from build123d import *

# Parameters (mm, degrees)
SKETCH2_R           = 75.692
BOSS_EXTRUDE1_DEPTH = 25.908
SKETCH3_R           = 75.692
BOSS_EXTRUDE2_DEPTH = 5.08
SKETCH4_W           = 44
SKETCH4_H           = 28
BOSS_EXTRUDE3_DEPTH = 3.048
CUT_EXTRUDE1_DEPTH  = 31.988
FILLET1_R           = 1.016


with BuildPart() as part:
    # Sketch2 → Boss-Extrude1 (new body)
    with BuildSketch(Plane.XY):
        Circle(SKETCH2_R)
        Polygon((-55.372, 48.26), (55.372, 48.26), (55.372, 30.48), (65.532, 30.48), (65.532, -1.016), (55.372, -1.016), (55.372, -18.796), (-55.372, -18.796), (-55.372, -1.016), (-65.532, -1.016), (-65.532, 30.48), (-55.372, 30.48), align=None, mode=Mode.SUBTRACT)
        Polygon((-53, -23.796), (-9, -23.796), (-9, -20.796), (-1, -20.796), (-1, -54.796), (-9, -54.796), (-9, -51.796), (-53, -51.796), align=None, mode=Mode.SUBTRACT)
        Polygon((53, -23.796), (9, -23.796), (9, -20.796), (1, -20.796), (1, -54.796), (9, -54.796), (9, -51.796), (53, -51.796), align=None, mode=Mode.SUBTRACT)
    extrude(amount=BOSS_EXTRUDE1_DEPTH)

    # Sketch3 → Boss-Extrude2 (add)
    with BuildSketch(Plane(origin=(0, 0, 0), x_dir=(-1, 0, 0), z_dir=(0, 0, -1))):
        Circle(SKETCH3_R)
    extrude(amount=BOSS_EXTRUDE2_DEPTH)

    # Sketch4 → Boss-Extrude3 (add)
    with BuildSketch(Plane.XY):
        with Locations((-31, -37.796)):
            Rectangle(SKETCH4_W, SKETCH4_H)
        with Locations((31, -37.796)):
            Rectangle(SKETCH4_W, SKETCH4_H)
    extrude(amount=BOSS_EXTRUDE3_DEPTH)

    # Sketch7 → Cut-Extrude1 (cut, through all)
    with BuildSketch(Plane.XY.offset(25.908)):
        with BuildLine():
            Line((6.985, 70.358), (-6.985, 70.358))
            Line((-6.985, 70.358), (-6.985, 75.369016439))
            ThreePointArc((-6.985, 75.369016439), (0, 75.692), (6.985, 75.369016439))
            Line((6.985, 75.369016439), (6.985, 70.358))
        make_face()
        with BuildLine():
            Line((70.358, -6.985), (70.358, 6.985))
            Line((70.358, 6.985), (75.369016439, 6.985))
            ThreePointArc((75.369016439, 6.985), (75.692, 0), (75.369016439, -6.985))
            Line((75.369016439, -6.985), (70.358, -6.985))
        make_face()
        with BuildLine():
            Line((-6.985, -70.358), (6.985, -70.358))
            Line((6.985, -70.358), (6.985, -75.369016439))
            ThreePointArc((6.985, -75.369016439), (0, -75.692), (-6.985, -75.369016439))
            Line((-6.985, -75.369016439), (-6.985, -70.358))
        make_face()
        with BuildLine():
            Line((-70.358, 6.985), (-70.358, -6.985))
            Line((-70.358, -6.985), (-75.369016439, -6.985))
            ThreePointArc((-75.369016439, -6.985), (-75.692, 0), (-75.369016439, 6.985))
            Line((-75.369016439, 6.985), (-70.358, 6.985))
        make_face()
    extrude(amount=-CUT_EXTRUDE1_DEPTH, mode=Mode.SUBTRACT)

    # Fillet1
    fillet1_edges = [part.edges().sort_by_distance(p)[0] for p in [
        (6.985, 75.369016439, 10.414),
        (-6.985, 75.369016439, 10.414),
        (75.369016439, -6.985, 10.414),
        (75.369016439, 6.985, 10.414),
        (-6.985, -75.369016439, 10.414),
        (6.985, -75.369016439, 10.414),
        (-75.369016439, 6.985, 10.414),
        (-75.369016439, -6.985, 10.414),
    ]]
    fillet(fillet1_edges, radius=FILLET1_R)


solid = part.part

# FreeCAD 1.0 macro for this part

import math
import FreeCAD as App
import Part
import Sketcher
Q = App.Units.Quantity


def edges_at(feature, points):
    """Names of the edges that pass closest to the given points."""
    edges = feature.Shape.Edges
    near = lambda p: min(range(len(edges)), key=lambda i: edges[i].distToShape(Part.Vertex(*p))[0])
    return sorted({f"Edge{near(p) + 1}" for p in points})

doc = App.newDocument("Part")
body = doc.addObject("PartDesign::Body", "Body")

sketch1 = doc.addObject("Sketcher::SketchObject", "Sketch")
body.addObject(sketch1)
sketch1.AttachmentSupport = (doc.XY_Plane, [""])
sketch1.MapMode = "FlatFace"
sketch1.addGeometry(Part.Circle(App.Vector(0, 0, 0), App.Vector(0, 0, 1), 75.7), False)
sketch1.addGeometry(Part.LineSegment(App.Vector(-53, -51.8, 0), App.Vector(-53, -23.8, 0)), False)
sketch1.addGeometry(Part.LineSegment(App.Vector(-53, -23.8, 0), App.Vector(-9, -23.8, 0)), False)
sketch1.addGeometry(Part.LineSegment(App.Vector(-9, -23.8, 0), App.Vector(-9, -20.8, 0)), False)
sketch1.addGeometry(Part.LineSegment(App.Vector(-9, -20.8, 0), App.Vector(-1, -20.8, 0)), False)
sketch1.addGeometry(Part.LineSegment(App.Vector(-1, -20.8, 0), App.Vector(-1, -54.8, 0)), False)
sketch1.addGeometry(Part.LineSegment(App.Vector(-1, -54.8, 0), App.Vector(-9, -54.8, 0)), False)
sketch1.addGeometry(Part.LineSegment(App.Vector(-9, -54.8, 0), App.Vector(-9, -51.8, 0)), False)
sketch1.addGeometry(Part.LineSegment(App.Vector(-9, -51.8, 0), App.Vector(-53, -51.8, 0)), False)
sketch1.addGeometry(Part.LineSegment(App.Vector(9, -23.8, 0), App.Vector(53, -23.8, 0)), False)
sketch1.addGeometry(Part.LineSegment(App.Vector(53, -23.8, 0), App.Vector(53, -51.8, 0)), False)
sketch1.addGeometry(Part.LineSegment(App.Vector(53, -51.8, 0), App.Vector(9, -51.8, 0)), False)
sketch1.addGeometry(Part.LineSegment(App.Vector(9, -51.8, 0), App.Vector(9, -54.8, 0)), False)
sketch1.addGeometry(Part.LineSegment(App.Vector(9, -54.8, 0), App.Vector(1, -54.8, 0)), False)
sketch1.addGeometry(Part.LineSegment(App.Vector(1, -54.8, 0), App.Vector(1, -20.8, 0)), False)
sketch1.addGeometry(Part.LineSegment(App.Vector(1, -20.8, 0), App.Vector(9, -20.8, 0)), False)
sketch1.addGeometry(Part.LineSegment(App.Vector(9, -20.8, 0), App.Vector(9, -23.8, 0)), False)
sketch1.addGeometry(Part.LineSegment(App.Vector(-55.4, 30.5, 0), App.Vector(-55.4, 48.3, 0)), False)
sketch1.addGeometry(Part.LineSegment(App.Vector(-55.4, 48.3, 0), App.Vector(55.4, 48.3, 0)), False)
sketch1.addGeometry(Part.LineSegment(App.Vector(55.4, 48.3, 0), App.Vector(55.4, 30.5, 0)), False)
sketch1.addGeometry(Part.LineSegment(App.Vector(55.4, 30.5, 0), App.Vector(65.5, 30.5, 0)), False)
sketch1.addGeometry(Part.LineSegment(App.Vector(65.5, 30.5, 0), App.Vector(65.5, -1, 0)), False)
sketch1.addGeometry(Part.LineSegment(App.Vector(65.5, -1, 0), App.Vector(55.4, -1, 0)), False)
sketch1.addGeometry(Part.LineSegment(App.Vector(55.4, -1, 0), App.Vector(55.4, -18.8, 0)), False)
sketch1.addGeometry(Part.LineSegment(App.Vector(55.4, -18.8, 0), App.Vector(-55.4, -18.8, 0)), False)
sketch1.addGeometry(Part.LineSegment(App.Vector(-55.4, -18.8, 0), App.Vector(-55.4, -1, 0)), False)
sketch1.addGeometry(Part.LineSegment(App.Vector(-55.4, -1, 0), App.Vector(-65.5, -1, 0)), False)
sketch1.addGeometry(Part.LineSegment(App.Vector(-65.5, -1, 0), App.Vector(-65.5, 30.5, 0)), False)
sketch1.addGeometry(Part.LineSegment(App.Vector(-65.5, 30.5, 0), App.Vector(-55.4, 30.5, 0)), False)
sketch1.addConstraint(Sketcher.Constraint("Coincident", 1, 2, 2, 1))
sketch1.addConstraint(Sketcher.Constraint("Coincident", 2, 2, 3, 1))
sketch1.addConstraint(Sketcher.Constraint("Coincident", 3, 2, 4, 1))
sketch1.addConstraint(Sketcher.Constraint("Coincident", 4, 2, 5, 1))
sketch1.addConstraint(Sketcher.Constraint("Coincident", 5, 2, 6, 1))
sketch1.addConstraint(Sketcher.Constraint("Coincident", 6, 2, 7, 1))
sketch1.addConstraint(Sketcher.Constraint("Coincident", 7, 2, 8, 1))
sketch1.addConstraint(Sketcher.Constraint("Coincident", 8, 2, 1, 1))
sketch1.addConstraint(Sketcher.Constraint("Coincident", 9, 2, 10, 1))
sketch1.addConstraint(Sketcher.Constraint("Coincident", 10, 2, 11, 1))
sketch1.addConstraint(Sketcher.Constraint("Coincident", 11, 2, 12, 1))
sketch1.addConstraint(Sketcher.Constraint("Coincident", 12, 2, 13, 1))
sketch1.addConstraint(Sketcher.Constraint("Coincident", 13, 2, 14, 1))
sketch1.addConstraint(Sketcher.Constraint("Coincident", 14, 2, 15, 1))
sketch1.addConstraint(Sketcher.Constraint("Coincident", 15, 2, 16, 1))
sketch1.addConstraint(Sketcher.Constraint("Coincident", 16, 2, 9, 1))
sketch1.addConstraint(Sketcher.Constraint("Coincident", 17, 2, 18, 1))
sketch1.addConstraint(Sketcher.Constraint("Coincident", 18, 2, 19, 1))
sketch1.addConstraint(Sketcher.Constraint("Coincident", 19, 2, 20, 1))
sketch1.addConstraint(Sketcher.Constraint("Coincident", 20, 2, 21, 1))
sketch1.addConstraint(Sketcher.Constraint("Coincident", 21, 2, 22, 1))
sketch1.addConstraint(Sketcher.Constraint("Coincident", 22, 2, 23, 1))
sketch1.addConstraint(Sketcher.Constraint("Coincident", 23, 2, 24, 1))
sketch1.addConstraint(Sketcher.Constraint("Coincident", 24, 2, 25, 1))
sketch1.addConstraint(Sketcher.Constraint("Coincident", 25, 2, 26, 1))
sketch1.addConstraint(Sketcher.Constraint("Coincident", 26, 2, 27, 1))
sketch1.addConstraint(Sketcher.Constraint("Coincident", 27, 2, 28, 1))
sketch1.addConstraint(Sketcher.Constraint("Coincident", 28, 2, 17, 1))
sketch1.addConstraint(Sketcher.Constraint("Vertical", 1))
sketch1.addConstraint(Sketcher.Constraint("Horizontal", 2))
sketch1.addConstraint(Sketcher.Constraint("Vertical", 3))
sketch1.addConstraint(Sketcher.Constraint("Horizontal", 4))
sketch1.addConstraint(Sketcher.Constraint("Vertical", 5))
sketch1.addConstraint(Sketcher.Constraint("Horizontal", 6))
sketch1.addConstraint(Sketcher.Constraint("Vertical", 7))
sketch1.addConstraint(Sketcher.Constraint("Horizontal", 8))
sketch1.addConstraint(Sketcher.Constraint("Horizontal", 9))
sketch1.addConstraint(Sketcher.Constraint("Vertical", 10))
sketch1.addConstraint(Sketcher.Constraint("Horizontal", 11))
sketch1.addConstraint(Sketcher.Constraint("Vertical", 12))
sketch1.addConstraint(Sketcher.Constraint("Horizontal", 13))
sketch1.addConstraint(Sketcher.Constraint("Vertical", 14))
sketch1.addConstraint(Sketcher.Constraint("Horizontal", 15))
sketch1.addConstraint(Sketcher.Constraint("Vertical", 16))
sketch1.addConstraint(Sketcher.Constraint("Vertical", 17))
sketch1.addConstraint(Sketcher.Constraint("Horizontal", 18))
sketch1.addConstraint(Sketcher.Constraint("Vertical", 19))
sketch1.addConstraint(Sketcher.Constraint("Horizontal", 20))
sketch1.addConstraint(Sketcher.Constraint("Vertical", 21))
sketch1.addConstraint(Sketcher.Constraint("Horizontal", 22))
sketch1.addConstraint(Sketcher.Constraint("Vertical", 23))
sketch1.addConstraint(Sketcher.Constraint("Horizontal", 24))
sketch1.addConstraint(Sketcher.Constraint("Vertical", 25))
sketch1.addConstraint(Sketcher.Constraint("Horizontal", 26))
sketch1.addConstraint(Sketcher.Constraint("Vertical", 27))
sketch1.addConstraint(Sketcher.Constraint("Horizontal", 28))
sketch1.addConstraint(Sketcher.Constraint("Coincident", 0, 3, -1, 1))
sketch1.addConstraint(Sketcher.Constraint("Symmetric", 1, 2, 9, 2, -2))
sketch1.addConstraint(Sketcher.Constraint("Symmetric", 7, 2, 11, 2, -2))
sketch1.addConstraint(Sketcher.Constraint("Symmetric", 5, 2, 13, 2, -2))
sketch1.addConstraint(Sketcher.Constraint("Symmetric", 3, 2, 15, 2, -2))
sketch1.addConstraint(Sketcher.Constraint("Symmetric", 22, 2, 25, 2, -2))
sketch1.addConstraint(Sketcher.Constraint("Symmetric", 20, 2, 27, 2, -2))
sketch1.addConstraint(Sketcher.Constraint("Vertical", 3, 2, 6, 2))
sketch1.addConstraint(Sketcher.Constraint("Vertical", 19, 2, 22, 2))
sketch1.addConstraint(Sketcher.Constraint("Vertical", 17, 2, 24, 2))
sketch1.addConstraint(Sketcher.Constraint("Equal", 3, 7))
sketch1.addConstraint(Sketcher.Constraint("Equal", 19, 23))
sketch1.addConstraint(Sketcher.Constraint("Diameter", 0, Q("5.96 in")))
sketch1.addConstraint(Sketcher.Constraint("DistanceX", 20, 1, 20, 2, Q("0.4 in")))
sketch1.addConstraint(Sketcher.Constraint("DistanceY", 17, 1, 17, 2, Q("0.7 in")))
sketch1.addConstraint(Sketcher.Constraint("DistanceX", 18, 1, 18, 2, Q("4.36 in")))
sketch1.addConstraint(Sketcher.Constraint("DistanceY", 21, 2, 21, 1, Q("1.24 in")))
sketch1.addConstraint(Sketcher.Constraint("DistanceY", -1, 1, 17, 2, Q("1.9 in")))
sketch1.addConstraint(Sketcher.Constraint("DistanceX", 2, 1, 2, 2, 44.0))
sketch1.addConstraint(Sketcher.Constraint("DistanceX", 4, 1, 4, 2, 8.0))
sketch1.addConstraint(Sketcher.Constraint("DistanceY", 1, 1, 1, 2, 28.0))
sketch1.addConstraint(Sketcher.Constraint("DistanceY", 3, 1, 3, 2, 3.0))
sketch1.addConstraint(Sketcher.Constraint("DistanceX", 1, 2, -1, 1, 53.0))
sketch1.addConstraint(Sketcher.Constraint("DistanceY", 1, 2, -1, 1, 23.796))
pad1 = doc.addObject("PartDesign::Pad", "Pad")
body.addObject(pad1)
pad1.Profile = sketch1
pad1.Length = Q("1.02 in")

sketch2 = doc.addObject("Sketcher::SketchObject", "Sketch001")
body.addObject(sketch2)
sketch2.AttachmentSupport = (doc.XY_Plane, [""])
sketch2.MapMode = "FlatFace"
sketch2.addGeometry(Part.Circle(App.Vector(0, 0, 0), App.Vector(0, 0, 1), 76), False)
sketch2.addConstraint(Sketcher.Constraint("Coincident", 0, 3, -1, 1))
sketch2.addConstraint(Sketcher.Constraint("Diameter", 0, Q("5.96 in")))
pad2 = doc.addObject("PartDesign::Pad", "Pad001")
body.addObject(pad2)
pad2.Profile = sketch2
pad2.Length = Q("0.2 in")
pad2.Reversed = True

sketch3 = doc.addObject("Sketcher::SketchObject", "Sketch002")
body.addObject(sketch3)
sketch3.AttachmentSupport = (doc.XY_Plane, [""])
sketch3.MapMode = "FlatFace"
sketch3.addGeometry(Part.LineSegment(App.Vector(-53, -24, 0), App.Vector(-53, -52, 0)), False)
sketch3.addGeometry(Part.LineSegment(App.Vector(-53, -52, 0), App.Vector(-9, -52, 0)), False)
sketch3.addGeometry(Part.LineSegment(App.Vector(-9, -52, 0), App.Vector(-9, -24, 0)), False)
sketch3.addGeometry(Part.LineSegment(App.Vector(-9, -24, 0), App.Vector(-53, -24, 0)), False)
sketch3.addGeometry(Part.LineSegment(App.Vector(9, -24, 0), App.Vector(9, -52, 0)), False)
sketch3.addGeometry(Part.LineSegment(App.Vector(9, -52, 0), App.Vector(53, -52, 0)), False)
sketch3.addGeometry(Part.LineSegment(App.Vector(53, -52, 0), App.Vector(53, -24, 0)), False)
sketch3.addGeometry(Part.LineSegment(App.Vector(53, -24, 0), App.Vector(9, -24, 0)), False)
sketch3.addConstraint(Sketcher.Constraint("Coincident", 0, 2, 1, 1))
sketch3.addConstraint(Sketcher.Constraint("Coincident", 1, 2, 2, 1))
sketch3.addConstraint(Sketcher.Constraint("Coincident", 2, 2, 3, 1))
sketch3.addConstraint(Sketcher.Constraint("Coincident", 3, 2, 0, 1))
sketch3.addConstraint(Sketcher.Constraint("Coincident", 4, 2, 5, 1))
sketch3.addConstraint(Sketcher.Constraint("Coincident", 5, 2, 6, 1))
sketch3.addConstraint(Sketcher.Constraint("Coincident", 6, 2, 7, 1))
sketch3.addConstraint(Sketcher.Constraint("Coincident", 7, 2, 4, 1))
sketch3.addConstraint(Sketcher.Constraint("Vertical", 0))
sketch3.addConstraint(Sketcher.Constraint("Horizontal", 1))
sketch3.addConstraint(Sketcher.Constraint("Vertical", 2))
sketch3.addConstraint(Sketcher.Constraint("Horizontal", 3))
sketch3.addConstraint(Sketcher.Constraint("Vertical", 4))
sketch3.addConstraint(Sketcher.Constraint("Horizontal", 5))
sketch3.addConstraint(Sketcher.Constraint("Vertical", 6))
sketch3.addConstraint(Sketcher.Constraint("Horizontal", 7))
sketch3.addConstraint(Sketcher.Constraint("Symmetric", 1, 2, 4, 2, -2))
sketch3.addConstraint(Sketcher.Constraint("Symmetric", 3, 2, 6, 2, -2))
sketch3.addConstraint(Sketcher.Constraint("DistanceX", 1, 1, 1, 2, 44.0))
sketch3.addConstraint(Sketcher.Constraint("DistanceY", 0, 2, 0, 1, 28.0))
sketch3.addConstraint(Sketcher.Constraint("DistanceX", 0, 2, -1, 1, 53.0))
sketch3.addConstraint(Sketcher.Constraint("DistanceY", 0, 2, -1, 1, 51.796))
pad3 = doc.addObject("PartDesign::Pad", "Pad002")
body.addObject(pad3)
pad3.Profile = sketch3
pad3.Length = Q("0.12 in")

sketch4 = doc.addObject("Sketcher::SketchObject", "Sketch003")
body.addObject(sketch4)
sketch4.AttachmentSupport = (doc.XY_Plane, [""])
sketch4.MapMode = "FlatFace"
sketch4.AttachmentOffset = App.Placement(App.Vector(0, 0, 1.02 * 25.4), App.Rotation())
sketch4.addGeometry(Part.LineSegment(App.Vector(-7, 70, 0), App.Vector(7, 70, 0)), False)
sketch4.addGeometry(Part.LineSegment(App.Vector(7, 70, 0), App.Vector(7, 75, 0)), False)
sketch4.addGeometry(Part.ArcOfCircle(Part.Circle(App.Vector(0, 0, 0), App.Vector(0, 0, 1), 76), math.radians(84.71), math.radians(95.29)), False)
sketch4.addGeometry(Part.LineSegment(App.Vector(-7, 75, 0), App.Vector(-7, 70, 0)), False)
sketch4.addGeometry(Part.LineSegment(App.Vector(70, 7, 0), App.Vector(70, -7, 0)), False)
sketch4.addGeometry(Part.LineSegment(App.Vector(70, -7, 0), App.Vector(75, -7, 0)), False)
sketch4.addGeometry(Part.ArcOfCircle(Part.Circle(App.Vector(0, 0, 0), App.Vector(0, 0, 1), 76), math.radians(-5.29), math.radians(5.29)), False)
sketch4.addGeometry(Part.LineSegment(App.Vector(75, 7, 0), App.Vector(70, 7, 0)), False)
sketch4.addGeometry(Part.LineSegment(App.Vector(7, -70, 0), App.Vector(-7, -70, 0)), False)
sketch4.addGeometry(Part.LineSegment(App.Vector(-7, -70, 0), App.Vector(-7, -75, 0)), False)
sketch4.addGeometry(Part.ArcOfCircle(Part.Circle(App.Vector(0, 0, 0), App.Vector(0, 0, 1), 76), math.radians(-95.29), math.radians(-84.71)), False)
sketch4.addGeometry(Part.LineSegment(App.Vector(7, -75, 0), App.Vector(7, -70, 0)), False)
sketch4.addGeometry(Part.LineSegment(App.Vector(-70, -7, 0), App.Vector(-70, 7, 0)), False)
sketch4.addGeometry(Part.LineSegment(App.Vector(-70, 7, 0), App.Vector(-75, 7, 0)), False)
sketch4.addGeometry(Part.ArcOfCircle(Part.Circle(App.Vector(0, 0, 0), App.Vector(0, 0, 1), 76), math.radians(174.71), math.radians(185.29)), False)
sketch4.addGeometry(Part.LineSegment(App.Vector(-75, -7, 0), App.Vector(-70, -7, 0)), False)
sketch4.addConstraint(Sketcher.Constraint("Coincident", 0, 2, 1, 1))
sketch4.addConstraint(Sketcher.Constraint("Coincident", 1, 2, 2, 1))
sketch4.addConstraint(Sketcher.Constraint("Coincident", 2, 2, 3, 1))
sketch4.addConstraint(Sketcher.Constraint("Coincident", 3, 2, 0, 1))
sketch4.addConstraint(Sketcher.Constraint("Coincident", 4, 2, 5, 1))
sketch4.addConstraint(Sketcher.Constraint("Coincident", 5, 2, 6, 1))
sketch4.addConstraint(Sketcher.Constraint("Coincident", 6, 2, 7, 1))
sketch4.addConstraint(Sketcher.Constraint("Coincident", 7, 2, 4, 1))
sketch4.addConstraint(Sketcher.Constraint("Coincident", 8, 2, 9, 1))
sketch4.addConstraint(Sketcher.Constraint("Coincident", 9, 2, 10, 1))
sketch4.addConstraint(Sketcher.Constraint("Coincident", 10, 2, 11, 1))
sketch4.addConstraint(Sketcher.Constraint("Coincident", 11, 2, 8, 1))
sketch4.addConstraint(Sketcher.Constraint("Coincident", 12, 2, 13, 1))
sketch4.addConstraint(Sketcher.Constraint("Coincident", 13, 2, 14, 1))
sketch4.addConstraint(Sketcher.Constraint("Coincident", 14, 2, 15, 1))
sketch4.addConstraint(Sketcher.Constraint("Coincident", 15, 2, 12, 1))
sketch4.addConstraint(Sketcher.Constraint("Horizontal", 0))
sketch4.addConstraint(Sketcher.Constraint("Vertical", 1))
sketch4.addConstraint(Sketcher.Constraint("Vertical", 3))
sketch4.addConstraint(Sketcher.Constraint("Vertical", 4))
sketch4.addConstraint(Sketcher.Constraint("Horizontal", 5))
sketch4.addConstraint(Sketcher.Constraint("Horizontal", 7))
sketch4.addConstraint(Sketcher.Constraint("Horizontal", 8))
sketch4.addConstraint(Sketcher.Constraint("Vertical", 9))
sketch4.addConstraint(Sketcher.Constraint("Vertical", 11))
sketch4.addConstraint(Sketcher.Constraint("Vertical", 12))
sketch4.addConstraint(Sketcher.Constraint("Horizontal", 13))
sketch4.addConstraint(Sketcher.Constraint("Horizontal", 15))
sketch4.addConstraint(Sketcher.Constraint("Coincident", 2, 3, -1, 1))
sketch4.addConstraint(Sketcher.Constraint("Coincident", 6, 3, -1, 1))
sketch4.addConstraint(Sketcher.Constraint("Coincident", 10, 3, -1, 1))
sketch4.addConstraint(Sketcher.Constraint("Coincident", 14, 3, -1, 1))
sketch4.addConstraint(Sketcher.Constraint("Equal", 2, 6))
sketch4.addConstraint(Sketcher.Constraint("Equal", 6, 10))
sketch4.addConstraint(Sketcher.Constraint("Equal", 10, 14))
sketch4.addConstraint(Sketcher.Constraint("Symmetric", 0, 2, 8, 2, -1, 1))
sketch4.addConstraint(Sketcher.Constraint("Symmetric", 4, 2, 12, 2, -1, 1))
sketch4.addConstraint(Sketcher.Constraint("Horizontal", 1, 2, 2, 2))
sketch4.addConstraint(Sketcher.Constraint("Horizontal", 9, 2, 10, 2))
sketch4.addConstraint(Sketcher.Constraint("Horizontal", 7, 2, 12, 2))
sketch4.addConstraint(Sketcher.Constraint("Horizontal", 5, 2, 14, 2))
sketch4.addConstraint(Sketcher.Constraint("Equal", 15, 1))
sketch4.addConstraint(Sketcher.Constraint("Equal", 8, 4))
sketch4.addConstraint(Sketcher.Constraint("Radius", 2, Q("2.98 in")))
sketch4.addConstraint(Sketcher.Constraint("DistanceX", 0, 1, 0, 2, Q("0.55 in")))
sketch4.addConstraint(Sketcher.Constraint("DistanceY", -1, 1, 0, 2, Q("2.77 in")))
pocket1 = doc.addObject("PartDesign::Pocket", "Pocket")
body.addObject(pocket1)
pocket1.Profile = sketch4
pocket1.Type = "ThroughAll"
doc.recompute()

fillet = doc.addObject("PartDesign::Fillet", "Fillet")
body.addObject(fillet)
fillet.Base = (pocket1, edges_at(pocket1, [
    (6.985, 75.369, 10.414),
    (-6.985, 75.369, 10.414),
    (75.369, -6.985, 10.414),
    (75.369, 6.985, 10.414),
    (-6.985, -75.369, 10.414),
    (6.985, -75.369, 10.414),
    (-75.369, 6.985, 10.414),
    (-75.369, -6.985, 10.414),
]))
fillet.Radius = Q("0.04 in")

doc.recompute()
